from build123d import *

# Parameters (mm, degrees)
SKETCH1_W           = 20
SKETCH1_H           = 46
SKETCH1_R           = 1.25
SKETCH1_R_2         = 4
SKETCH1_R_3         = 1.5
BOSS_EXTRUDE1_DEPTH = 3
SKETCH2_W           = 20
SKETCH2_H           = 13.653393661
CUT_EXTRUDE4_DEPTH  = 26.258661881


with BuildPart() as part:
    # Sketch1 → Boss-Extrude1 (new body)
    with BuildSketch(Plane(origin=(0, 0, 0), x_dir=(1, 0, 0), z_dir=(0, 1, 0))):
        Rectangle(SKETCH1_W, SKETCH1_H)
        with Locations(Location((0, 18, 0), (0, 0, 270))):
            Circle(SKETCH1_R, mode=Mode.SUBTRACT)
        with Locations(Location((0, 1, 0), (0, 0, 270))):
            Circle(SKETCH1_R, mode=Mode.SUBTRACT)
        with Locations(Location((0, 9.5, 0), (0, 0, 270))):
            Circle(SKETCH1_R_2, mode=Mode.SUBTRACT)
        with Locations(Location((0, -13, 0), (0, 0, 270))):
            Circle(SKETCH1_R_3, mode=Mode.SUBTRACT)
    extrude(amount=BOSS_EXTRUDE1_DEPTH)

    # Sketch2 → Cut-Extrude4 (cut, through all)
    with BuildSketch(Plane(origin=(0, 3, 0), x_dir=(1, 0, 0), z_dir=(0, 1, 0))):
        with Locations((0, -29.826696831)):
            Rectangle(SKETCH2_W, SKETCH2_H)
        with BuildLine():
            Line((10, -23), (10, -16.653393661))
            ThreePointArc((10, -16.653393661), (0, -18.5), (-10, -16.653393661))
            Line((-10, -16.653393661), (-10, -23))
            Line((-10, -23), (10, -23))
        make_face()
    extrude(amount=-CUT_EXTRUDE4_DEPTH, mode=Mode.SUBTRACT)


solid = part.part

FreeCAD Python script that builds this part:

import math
import FreeCAD as App
import Part
import Sketcher
Q = App.Units.Quantity


def add_polygon(sketch, points):
    """Adds a closed chain of lines whose ends are joined by coincident constraints."""
    first, n = sketch.GeometryCount, len(points)
    for a, b in zip(points, points[1:] + points[:1]):
        sketch.addGeometry(Part.LineSegment(App.Vector(*a, 0), App.Vector(*b, 0)), False)
    for i in range(n):
        sketch.addConstraint(Sketcher.Constraint("Coincident", first + i, 2, first + (i + 1) % n, 1))

doc = App.newDocument("Part")
body = doc.addObject("PartDesign::Body", "Body")

sketch1 = body.newObject("Sketcher::SketchObject", "Sketch")
sketch1.AttachmentSupport = (doc.getObject("XZ_Plane"), [""])
sketch1.MapMode = "FlatFace"
add_polygon(sketch1, [(-10, -23), (-10, 23), (10, 23), (10, -23)])
sketch1.addGeometry(Part.Circle(App.Vector(0, 13, 0), App.Vector(0, 0, 1), 1.5), False)
sketch1.addGeometry(Part.Circle(App.Vector(0, -1, 0), App.Vector(0, 0, 1), 1.25), False)
sketch1.addGeometry(Part.Circle(App.Vector(0, -9.5, 0), App.Vector(0, 0, 1), 4), False)
sketch1.addGeometry(Part.Circle(App.Vector(0, -18, 0), App.Vector(0, 0, 1), 1.25), False)
sketch1.addConstraint([
    Sketcher.Constraint("Vertical", 0),
    Sketcher.Constraint("Horizontal", 1),
    Sketcher.Constraint("Vertical", 2),
    Sketcher.Constraint("Horizontal", 3),
    Sketcher.Constraint("Equal", 5, 7),
    Sketcher.Constraint("Symmetric", 0, 2, 2, 2, -1, 1),
    Sketcher.Constraint("PointOnObject", 4, 3, -2),
    Sketcher.Constraint("PointOnObject", 5, 3, -2),
    Sketcher.Constraint("PointOnObject", 6, 3, -2),
    Sketcher.Constraint("PointOnObject", 7, 3, -2),
    Sketcher.Constraint("Diameter", 4, Q("3 mm")),
    Sketcher.Constraint("Diameter", 6, Q("8 mm")),
    Sketcher.Constraint("Diameter", 5, Q("2.5 mm")),
    Sketcher.Constraint("DistanceX", 1, 1, 1, 2, Q("20 mm")),
    Sketcher.Constraint("DistanceY", 0, 1, 0, 2, Q("46 mm")),
    Sketcher.Constraint("DistanceY", -1, 1, 4, 3, Q("13 mm")),
    Sketcher.Constraint("DistanceY", 5, 3, -1, 1, Q("1 mm")),
    Sketcher.Constraint("DistanceY", 7, 3, -1, 1, Q("18 mm")),
    Sketcher.Constraint("DistanceY", 6, 3, -1, 1, Q("9.5 mm")),
])
pad1 = body.newObject("PartDesign::Pad", "Pad")
pad1.Profile = sketch1
pad1.Length = 3
pad1.Reversed = True

sketch2 = body.newObject("Sketcher::SketchObject", "Sketch001")
sketch2.AttachmentSupport = (doc.getObject("XZ_Plane"), [""])
sketch2.MapMode = "FlatFace"
sketch2.AttachmentOffset = App.Placement(App.Vector(0, 0, -3), App.Rotation())
sketch2.addGeometry([
    Part.LineSegment(App.Vector(-10, 36.653394, 0), App.Vector(10, 36.653394, 0)),
    Part.LineSegment(App.Vector(10, 36.653394, 0), App.Vector(10, 16.653394, 0)),
    Part.ArcOfCircle(Part.Circle(App.Vector(0, -9.5, 0), App.Vector(0, 0, 1), 28), math.radians(69.075168), math.radians(110.924832)),
    Part.LineSegment(App.Vector(-10, 16.653394, 0), App.Vector(-10, 36.653394, 0)),
], False)
sketch2.addConstraint([
    Sketcher.Constraint("Coincident", 0, 2, 1, 1),
    Sketcher.Constraint("Coincident", 1, 2, 2, 1),
    Sketcher.Constraint("Coincident", 2, 2, 3, 1),
    Sketcher.Constraint("Coincident", 3, 2, 0, 1),
    Sketcher.Constraint("Horizontal", 0),
    Sketcher.Constraint("Vertical", 1),
    Sketcher.Constraint("Vertical", 3),
    Sketcher.Constraint("Symmetric", 1, 2, 2, 2, -2),
    Sketcher.Constraint("Equal", 0, 1),
    Sketcher.Constraint("Radius", 2, Q("28 mm")),
    Sketcher.Constraint("DistanceX", 0, 1, 0, 2, Q("20 mm")),
    Sketcher.Constraint("DistanceY", 2, 3, -1, 1, Q("9.5 mm")),
])
pocket1 = body.newObject("PartDesign::Pocket", "Pocket")
pocket1.Profile = sketch2
pocket1.Type = "ThroughAll"
pocket1.Reversed = True

doc.recompute()
